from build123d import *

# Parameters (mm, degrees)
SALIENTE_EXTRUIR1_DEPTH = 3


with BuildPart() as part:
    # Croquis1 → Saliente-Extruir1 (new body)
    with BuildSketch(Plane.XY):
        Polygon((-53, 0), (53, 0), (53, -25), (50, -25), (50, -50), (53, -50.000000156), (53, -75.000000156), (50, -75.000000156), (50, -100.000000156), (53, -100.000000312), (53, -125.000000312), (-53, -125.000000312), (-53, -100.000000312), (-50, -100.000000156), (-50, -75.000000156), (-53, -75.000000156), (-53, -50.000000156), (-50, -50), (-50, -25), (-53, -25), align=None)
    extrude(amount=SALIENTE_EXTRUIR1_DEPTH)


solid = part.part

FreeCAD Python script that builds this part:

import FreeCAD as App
import Part
import Sketcher
from FreeCAD import Vector


def add_polygon(sketch, points):
    """Adds a closed chain of lines whose ends are joined by coincident constraints."""
    first, n = sketch.GeometryCount, len(points)
    for a, b in zip(points, points[1:] + points[:1]):
        sketch.addGeometry(Part.LineSegment(App.Vector(*a, 0), App.Vector(*b, 0)), False)
    for i in range(n):
        sketch.addConstraint(Sketcher.Constraint("Coincident", first + i, 2, first + (i + 1) % n, 1))

doc = App.newDocument("Part")
body = doc.addObject("PartDesign::Body", "Body")

# Sketch on XY plane
sketch1 = body.newObject("Sketcher::SketchObject", "Sketch")
sketch1.AttachmentSupport = (doc.getObject("XY_Plane"), [""])
sketch1.MapMode = "FlatFace"
add_polygon(sketch1, [(53, 0), (-53, 0), (-53, -25), (-50, -25), (-50, -50), (-53, -50), (-53, -75), (-50, -75), (-50, -100), (-53, -100), (-53, -125), (53, -125), (53, -100), (50, -100), (50, -75), (53, -75), (53, -50), (50, -50), (50, -25), (53, -25)])  # lines 0-19
sketch1.addConstraint([
    Sketcher.Constraint("Horizontal", 0),
    Sketcher.Constraint("Vertical", 1),
    Sketcher.Constraint("Horizontal", 2),
    Sketcher.Constraint("Vertical", 3),
    Sketcher.Constraint("Horizontal", 4),
    Sketcher.Constraint("Vertical", 5),
    Sketcher.Constraint("Horizontal", 6),
    Sketcher.Constraint("Vertical", 7),
    Sketcher.Constraint("Horizontal", 8),
    Sketcher.Constraint("Vertical", 9),
    Sketcher.Constraint("Horizontal", 10),
    Sketcher.Constraint("Vertical", 11),
    Sketcher.Constraint("Horizontal", 12),
    Sketcher.Constraint("Vertical", 13),
    Sketcher.Constraint("Horizontal", 14),
    Sketcher.Constraint("Vertical", 15),
    Sketcher.Constraint("Horizontal", 16),
    Sketcher.Constraint("Vertical", 17),
    Sketcher.Constraint("Horizontal", 18),
    Sketcher.Constraint("Vertical", 19),
    Sketcher.Constraint("Symmetric", 0, 2, 19, 2, -1, 1),
    Sketcher.Constraint("Symmetric", 8, 2, 11, 2, -2),
    Sketcher.Constraint("Symmetric", 6, 2, 13, 2, -2),
    Sketcher.Constraint("Symmetric", 4, 2, 15, 2, -2),
    Sketcher.Constraint("Symmetric", 2, 2, 17, 2, -2),
    Sketcher.Constraint("Vertical", 1, 2, 4, 2),
    Sketcher.Constraint("Vertical", 3, 2, 6, 2),
    Sketcher.Constraint("Vertical", 5, 2, 8, 2),
    Sketcher.Constraint("Equal", 1, 3),
    Sketcher.Constraint("Equal", 3, 5),
    Sketcher.Constraint("Equal", 5, 7),
    Sketcher.Constraint("Equal", 7, 9),
    Sketcher.Constraint("DistanceX", 0, 2, 0, 1, 106.0),
    Sketcher.Constraint("DistanceX", 2, 1, 2, 2, 3.0),
    Sketcher.Constraint("DistanceY", 1, 2, 1, 1, 25.0),
])
pad1 = body.newObject("PartDesign::Pad", "Pad")
pad1.Profile = sketch1
pad1.Length = 3

doc.recompute()
